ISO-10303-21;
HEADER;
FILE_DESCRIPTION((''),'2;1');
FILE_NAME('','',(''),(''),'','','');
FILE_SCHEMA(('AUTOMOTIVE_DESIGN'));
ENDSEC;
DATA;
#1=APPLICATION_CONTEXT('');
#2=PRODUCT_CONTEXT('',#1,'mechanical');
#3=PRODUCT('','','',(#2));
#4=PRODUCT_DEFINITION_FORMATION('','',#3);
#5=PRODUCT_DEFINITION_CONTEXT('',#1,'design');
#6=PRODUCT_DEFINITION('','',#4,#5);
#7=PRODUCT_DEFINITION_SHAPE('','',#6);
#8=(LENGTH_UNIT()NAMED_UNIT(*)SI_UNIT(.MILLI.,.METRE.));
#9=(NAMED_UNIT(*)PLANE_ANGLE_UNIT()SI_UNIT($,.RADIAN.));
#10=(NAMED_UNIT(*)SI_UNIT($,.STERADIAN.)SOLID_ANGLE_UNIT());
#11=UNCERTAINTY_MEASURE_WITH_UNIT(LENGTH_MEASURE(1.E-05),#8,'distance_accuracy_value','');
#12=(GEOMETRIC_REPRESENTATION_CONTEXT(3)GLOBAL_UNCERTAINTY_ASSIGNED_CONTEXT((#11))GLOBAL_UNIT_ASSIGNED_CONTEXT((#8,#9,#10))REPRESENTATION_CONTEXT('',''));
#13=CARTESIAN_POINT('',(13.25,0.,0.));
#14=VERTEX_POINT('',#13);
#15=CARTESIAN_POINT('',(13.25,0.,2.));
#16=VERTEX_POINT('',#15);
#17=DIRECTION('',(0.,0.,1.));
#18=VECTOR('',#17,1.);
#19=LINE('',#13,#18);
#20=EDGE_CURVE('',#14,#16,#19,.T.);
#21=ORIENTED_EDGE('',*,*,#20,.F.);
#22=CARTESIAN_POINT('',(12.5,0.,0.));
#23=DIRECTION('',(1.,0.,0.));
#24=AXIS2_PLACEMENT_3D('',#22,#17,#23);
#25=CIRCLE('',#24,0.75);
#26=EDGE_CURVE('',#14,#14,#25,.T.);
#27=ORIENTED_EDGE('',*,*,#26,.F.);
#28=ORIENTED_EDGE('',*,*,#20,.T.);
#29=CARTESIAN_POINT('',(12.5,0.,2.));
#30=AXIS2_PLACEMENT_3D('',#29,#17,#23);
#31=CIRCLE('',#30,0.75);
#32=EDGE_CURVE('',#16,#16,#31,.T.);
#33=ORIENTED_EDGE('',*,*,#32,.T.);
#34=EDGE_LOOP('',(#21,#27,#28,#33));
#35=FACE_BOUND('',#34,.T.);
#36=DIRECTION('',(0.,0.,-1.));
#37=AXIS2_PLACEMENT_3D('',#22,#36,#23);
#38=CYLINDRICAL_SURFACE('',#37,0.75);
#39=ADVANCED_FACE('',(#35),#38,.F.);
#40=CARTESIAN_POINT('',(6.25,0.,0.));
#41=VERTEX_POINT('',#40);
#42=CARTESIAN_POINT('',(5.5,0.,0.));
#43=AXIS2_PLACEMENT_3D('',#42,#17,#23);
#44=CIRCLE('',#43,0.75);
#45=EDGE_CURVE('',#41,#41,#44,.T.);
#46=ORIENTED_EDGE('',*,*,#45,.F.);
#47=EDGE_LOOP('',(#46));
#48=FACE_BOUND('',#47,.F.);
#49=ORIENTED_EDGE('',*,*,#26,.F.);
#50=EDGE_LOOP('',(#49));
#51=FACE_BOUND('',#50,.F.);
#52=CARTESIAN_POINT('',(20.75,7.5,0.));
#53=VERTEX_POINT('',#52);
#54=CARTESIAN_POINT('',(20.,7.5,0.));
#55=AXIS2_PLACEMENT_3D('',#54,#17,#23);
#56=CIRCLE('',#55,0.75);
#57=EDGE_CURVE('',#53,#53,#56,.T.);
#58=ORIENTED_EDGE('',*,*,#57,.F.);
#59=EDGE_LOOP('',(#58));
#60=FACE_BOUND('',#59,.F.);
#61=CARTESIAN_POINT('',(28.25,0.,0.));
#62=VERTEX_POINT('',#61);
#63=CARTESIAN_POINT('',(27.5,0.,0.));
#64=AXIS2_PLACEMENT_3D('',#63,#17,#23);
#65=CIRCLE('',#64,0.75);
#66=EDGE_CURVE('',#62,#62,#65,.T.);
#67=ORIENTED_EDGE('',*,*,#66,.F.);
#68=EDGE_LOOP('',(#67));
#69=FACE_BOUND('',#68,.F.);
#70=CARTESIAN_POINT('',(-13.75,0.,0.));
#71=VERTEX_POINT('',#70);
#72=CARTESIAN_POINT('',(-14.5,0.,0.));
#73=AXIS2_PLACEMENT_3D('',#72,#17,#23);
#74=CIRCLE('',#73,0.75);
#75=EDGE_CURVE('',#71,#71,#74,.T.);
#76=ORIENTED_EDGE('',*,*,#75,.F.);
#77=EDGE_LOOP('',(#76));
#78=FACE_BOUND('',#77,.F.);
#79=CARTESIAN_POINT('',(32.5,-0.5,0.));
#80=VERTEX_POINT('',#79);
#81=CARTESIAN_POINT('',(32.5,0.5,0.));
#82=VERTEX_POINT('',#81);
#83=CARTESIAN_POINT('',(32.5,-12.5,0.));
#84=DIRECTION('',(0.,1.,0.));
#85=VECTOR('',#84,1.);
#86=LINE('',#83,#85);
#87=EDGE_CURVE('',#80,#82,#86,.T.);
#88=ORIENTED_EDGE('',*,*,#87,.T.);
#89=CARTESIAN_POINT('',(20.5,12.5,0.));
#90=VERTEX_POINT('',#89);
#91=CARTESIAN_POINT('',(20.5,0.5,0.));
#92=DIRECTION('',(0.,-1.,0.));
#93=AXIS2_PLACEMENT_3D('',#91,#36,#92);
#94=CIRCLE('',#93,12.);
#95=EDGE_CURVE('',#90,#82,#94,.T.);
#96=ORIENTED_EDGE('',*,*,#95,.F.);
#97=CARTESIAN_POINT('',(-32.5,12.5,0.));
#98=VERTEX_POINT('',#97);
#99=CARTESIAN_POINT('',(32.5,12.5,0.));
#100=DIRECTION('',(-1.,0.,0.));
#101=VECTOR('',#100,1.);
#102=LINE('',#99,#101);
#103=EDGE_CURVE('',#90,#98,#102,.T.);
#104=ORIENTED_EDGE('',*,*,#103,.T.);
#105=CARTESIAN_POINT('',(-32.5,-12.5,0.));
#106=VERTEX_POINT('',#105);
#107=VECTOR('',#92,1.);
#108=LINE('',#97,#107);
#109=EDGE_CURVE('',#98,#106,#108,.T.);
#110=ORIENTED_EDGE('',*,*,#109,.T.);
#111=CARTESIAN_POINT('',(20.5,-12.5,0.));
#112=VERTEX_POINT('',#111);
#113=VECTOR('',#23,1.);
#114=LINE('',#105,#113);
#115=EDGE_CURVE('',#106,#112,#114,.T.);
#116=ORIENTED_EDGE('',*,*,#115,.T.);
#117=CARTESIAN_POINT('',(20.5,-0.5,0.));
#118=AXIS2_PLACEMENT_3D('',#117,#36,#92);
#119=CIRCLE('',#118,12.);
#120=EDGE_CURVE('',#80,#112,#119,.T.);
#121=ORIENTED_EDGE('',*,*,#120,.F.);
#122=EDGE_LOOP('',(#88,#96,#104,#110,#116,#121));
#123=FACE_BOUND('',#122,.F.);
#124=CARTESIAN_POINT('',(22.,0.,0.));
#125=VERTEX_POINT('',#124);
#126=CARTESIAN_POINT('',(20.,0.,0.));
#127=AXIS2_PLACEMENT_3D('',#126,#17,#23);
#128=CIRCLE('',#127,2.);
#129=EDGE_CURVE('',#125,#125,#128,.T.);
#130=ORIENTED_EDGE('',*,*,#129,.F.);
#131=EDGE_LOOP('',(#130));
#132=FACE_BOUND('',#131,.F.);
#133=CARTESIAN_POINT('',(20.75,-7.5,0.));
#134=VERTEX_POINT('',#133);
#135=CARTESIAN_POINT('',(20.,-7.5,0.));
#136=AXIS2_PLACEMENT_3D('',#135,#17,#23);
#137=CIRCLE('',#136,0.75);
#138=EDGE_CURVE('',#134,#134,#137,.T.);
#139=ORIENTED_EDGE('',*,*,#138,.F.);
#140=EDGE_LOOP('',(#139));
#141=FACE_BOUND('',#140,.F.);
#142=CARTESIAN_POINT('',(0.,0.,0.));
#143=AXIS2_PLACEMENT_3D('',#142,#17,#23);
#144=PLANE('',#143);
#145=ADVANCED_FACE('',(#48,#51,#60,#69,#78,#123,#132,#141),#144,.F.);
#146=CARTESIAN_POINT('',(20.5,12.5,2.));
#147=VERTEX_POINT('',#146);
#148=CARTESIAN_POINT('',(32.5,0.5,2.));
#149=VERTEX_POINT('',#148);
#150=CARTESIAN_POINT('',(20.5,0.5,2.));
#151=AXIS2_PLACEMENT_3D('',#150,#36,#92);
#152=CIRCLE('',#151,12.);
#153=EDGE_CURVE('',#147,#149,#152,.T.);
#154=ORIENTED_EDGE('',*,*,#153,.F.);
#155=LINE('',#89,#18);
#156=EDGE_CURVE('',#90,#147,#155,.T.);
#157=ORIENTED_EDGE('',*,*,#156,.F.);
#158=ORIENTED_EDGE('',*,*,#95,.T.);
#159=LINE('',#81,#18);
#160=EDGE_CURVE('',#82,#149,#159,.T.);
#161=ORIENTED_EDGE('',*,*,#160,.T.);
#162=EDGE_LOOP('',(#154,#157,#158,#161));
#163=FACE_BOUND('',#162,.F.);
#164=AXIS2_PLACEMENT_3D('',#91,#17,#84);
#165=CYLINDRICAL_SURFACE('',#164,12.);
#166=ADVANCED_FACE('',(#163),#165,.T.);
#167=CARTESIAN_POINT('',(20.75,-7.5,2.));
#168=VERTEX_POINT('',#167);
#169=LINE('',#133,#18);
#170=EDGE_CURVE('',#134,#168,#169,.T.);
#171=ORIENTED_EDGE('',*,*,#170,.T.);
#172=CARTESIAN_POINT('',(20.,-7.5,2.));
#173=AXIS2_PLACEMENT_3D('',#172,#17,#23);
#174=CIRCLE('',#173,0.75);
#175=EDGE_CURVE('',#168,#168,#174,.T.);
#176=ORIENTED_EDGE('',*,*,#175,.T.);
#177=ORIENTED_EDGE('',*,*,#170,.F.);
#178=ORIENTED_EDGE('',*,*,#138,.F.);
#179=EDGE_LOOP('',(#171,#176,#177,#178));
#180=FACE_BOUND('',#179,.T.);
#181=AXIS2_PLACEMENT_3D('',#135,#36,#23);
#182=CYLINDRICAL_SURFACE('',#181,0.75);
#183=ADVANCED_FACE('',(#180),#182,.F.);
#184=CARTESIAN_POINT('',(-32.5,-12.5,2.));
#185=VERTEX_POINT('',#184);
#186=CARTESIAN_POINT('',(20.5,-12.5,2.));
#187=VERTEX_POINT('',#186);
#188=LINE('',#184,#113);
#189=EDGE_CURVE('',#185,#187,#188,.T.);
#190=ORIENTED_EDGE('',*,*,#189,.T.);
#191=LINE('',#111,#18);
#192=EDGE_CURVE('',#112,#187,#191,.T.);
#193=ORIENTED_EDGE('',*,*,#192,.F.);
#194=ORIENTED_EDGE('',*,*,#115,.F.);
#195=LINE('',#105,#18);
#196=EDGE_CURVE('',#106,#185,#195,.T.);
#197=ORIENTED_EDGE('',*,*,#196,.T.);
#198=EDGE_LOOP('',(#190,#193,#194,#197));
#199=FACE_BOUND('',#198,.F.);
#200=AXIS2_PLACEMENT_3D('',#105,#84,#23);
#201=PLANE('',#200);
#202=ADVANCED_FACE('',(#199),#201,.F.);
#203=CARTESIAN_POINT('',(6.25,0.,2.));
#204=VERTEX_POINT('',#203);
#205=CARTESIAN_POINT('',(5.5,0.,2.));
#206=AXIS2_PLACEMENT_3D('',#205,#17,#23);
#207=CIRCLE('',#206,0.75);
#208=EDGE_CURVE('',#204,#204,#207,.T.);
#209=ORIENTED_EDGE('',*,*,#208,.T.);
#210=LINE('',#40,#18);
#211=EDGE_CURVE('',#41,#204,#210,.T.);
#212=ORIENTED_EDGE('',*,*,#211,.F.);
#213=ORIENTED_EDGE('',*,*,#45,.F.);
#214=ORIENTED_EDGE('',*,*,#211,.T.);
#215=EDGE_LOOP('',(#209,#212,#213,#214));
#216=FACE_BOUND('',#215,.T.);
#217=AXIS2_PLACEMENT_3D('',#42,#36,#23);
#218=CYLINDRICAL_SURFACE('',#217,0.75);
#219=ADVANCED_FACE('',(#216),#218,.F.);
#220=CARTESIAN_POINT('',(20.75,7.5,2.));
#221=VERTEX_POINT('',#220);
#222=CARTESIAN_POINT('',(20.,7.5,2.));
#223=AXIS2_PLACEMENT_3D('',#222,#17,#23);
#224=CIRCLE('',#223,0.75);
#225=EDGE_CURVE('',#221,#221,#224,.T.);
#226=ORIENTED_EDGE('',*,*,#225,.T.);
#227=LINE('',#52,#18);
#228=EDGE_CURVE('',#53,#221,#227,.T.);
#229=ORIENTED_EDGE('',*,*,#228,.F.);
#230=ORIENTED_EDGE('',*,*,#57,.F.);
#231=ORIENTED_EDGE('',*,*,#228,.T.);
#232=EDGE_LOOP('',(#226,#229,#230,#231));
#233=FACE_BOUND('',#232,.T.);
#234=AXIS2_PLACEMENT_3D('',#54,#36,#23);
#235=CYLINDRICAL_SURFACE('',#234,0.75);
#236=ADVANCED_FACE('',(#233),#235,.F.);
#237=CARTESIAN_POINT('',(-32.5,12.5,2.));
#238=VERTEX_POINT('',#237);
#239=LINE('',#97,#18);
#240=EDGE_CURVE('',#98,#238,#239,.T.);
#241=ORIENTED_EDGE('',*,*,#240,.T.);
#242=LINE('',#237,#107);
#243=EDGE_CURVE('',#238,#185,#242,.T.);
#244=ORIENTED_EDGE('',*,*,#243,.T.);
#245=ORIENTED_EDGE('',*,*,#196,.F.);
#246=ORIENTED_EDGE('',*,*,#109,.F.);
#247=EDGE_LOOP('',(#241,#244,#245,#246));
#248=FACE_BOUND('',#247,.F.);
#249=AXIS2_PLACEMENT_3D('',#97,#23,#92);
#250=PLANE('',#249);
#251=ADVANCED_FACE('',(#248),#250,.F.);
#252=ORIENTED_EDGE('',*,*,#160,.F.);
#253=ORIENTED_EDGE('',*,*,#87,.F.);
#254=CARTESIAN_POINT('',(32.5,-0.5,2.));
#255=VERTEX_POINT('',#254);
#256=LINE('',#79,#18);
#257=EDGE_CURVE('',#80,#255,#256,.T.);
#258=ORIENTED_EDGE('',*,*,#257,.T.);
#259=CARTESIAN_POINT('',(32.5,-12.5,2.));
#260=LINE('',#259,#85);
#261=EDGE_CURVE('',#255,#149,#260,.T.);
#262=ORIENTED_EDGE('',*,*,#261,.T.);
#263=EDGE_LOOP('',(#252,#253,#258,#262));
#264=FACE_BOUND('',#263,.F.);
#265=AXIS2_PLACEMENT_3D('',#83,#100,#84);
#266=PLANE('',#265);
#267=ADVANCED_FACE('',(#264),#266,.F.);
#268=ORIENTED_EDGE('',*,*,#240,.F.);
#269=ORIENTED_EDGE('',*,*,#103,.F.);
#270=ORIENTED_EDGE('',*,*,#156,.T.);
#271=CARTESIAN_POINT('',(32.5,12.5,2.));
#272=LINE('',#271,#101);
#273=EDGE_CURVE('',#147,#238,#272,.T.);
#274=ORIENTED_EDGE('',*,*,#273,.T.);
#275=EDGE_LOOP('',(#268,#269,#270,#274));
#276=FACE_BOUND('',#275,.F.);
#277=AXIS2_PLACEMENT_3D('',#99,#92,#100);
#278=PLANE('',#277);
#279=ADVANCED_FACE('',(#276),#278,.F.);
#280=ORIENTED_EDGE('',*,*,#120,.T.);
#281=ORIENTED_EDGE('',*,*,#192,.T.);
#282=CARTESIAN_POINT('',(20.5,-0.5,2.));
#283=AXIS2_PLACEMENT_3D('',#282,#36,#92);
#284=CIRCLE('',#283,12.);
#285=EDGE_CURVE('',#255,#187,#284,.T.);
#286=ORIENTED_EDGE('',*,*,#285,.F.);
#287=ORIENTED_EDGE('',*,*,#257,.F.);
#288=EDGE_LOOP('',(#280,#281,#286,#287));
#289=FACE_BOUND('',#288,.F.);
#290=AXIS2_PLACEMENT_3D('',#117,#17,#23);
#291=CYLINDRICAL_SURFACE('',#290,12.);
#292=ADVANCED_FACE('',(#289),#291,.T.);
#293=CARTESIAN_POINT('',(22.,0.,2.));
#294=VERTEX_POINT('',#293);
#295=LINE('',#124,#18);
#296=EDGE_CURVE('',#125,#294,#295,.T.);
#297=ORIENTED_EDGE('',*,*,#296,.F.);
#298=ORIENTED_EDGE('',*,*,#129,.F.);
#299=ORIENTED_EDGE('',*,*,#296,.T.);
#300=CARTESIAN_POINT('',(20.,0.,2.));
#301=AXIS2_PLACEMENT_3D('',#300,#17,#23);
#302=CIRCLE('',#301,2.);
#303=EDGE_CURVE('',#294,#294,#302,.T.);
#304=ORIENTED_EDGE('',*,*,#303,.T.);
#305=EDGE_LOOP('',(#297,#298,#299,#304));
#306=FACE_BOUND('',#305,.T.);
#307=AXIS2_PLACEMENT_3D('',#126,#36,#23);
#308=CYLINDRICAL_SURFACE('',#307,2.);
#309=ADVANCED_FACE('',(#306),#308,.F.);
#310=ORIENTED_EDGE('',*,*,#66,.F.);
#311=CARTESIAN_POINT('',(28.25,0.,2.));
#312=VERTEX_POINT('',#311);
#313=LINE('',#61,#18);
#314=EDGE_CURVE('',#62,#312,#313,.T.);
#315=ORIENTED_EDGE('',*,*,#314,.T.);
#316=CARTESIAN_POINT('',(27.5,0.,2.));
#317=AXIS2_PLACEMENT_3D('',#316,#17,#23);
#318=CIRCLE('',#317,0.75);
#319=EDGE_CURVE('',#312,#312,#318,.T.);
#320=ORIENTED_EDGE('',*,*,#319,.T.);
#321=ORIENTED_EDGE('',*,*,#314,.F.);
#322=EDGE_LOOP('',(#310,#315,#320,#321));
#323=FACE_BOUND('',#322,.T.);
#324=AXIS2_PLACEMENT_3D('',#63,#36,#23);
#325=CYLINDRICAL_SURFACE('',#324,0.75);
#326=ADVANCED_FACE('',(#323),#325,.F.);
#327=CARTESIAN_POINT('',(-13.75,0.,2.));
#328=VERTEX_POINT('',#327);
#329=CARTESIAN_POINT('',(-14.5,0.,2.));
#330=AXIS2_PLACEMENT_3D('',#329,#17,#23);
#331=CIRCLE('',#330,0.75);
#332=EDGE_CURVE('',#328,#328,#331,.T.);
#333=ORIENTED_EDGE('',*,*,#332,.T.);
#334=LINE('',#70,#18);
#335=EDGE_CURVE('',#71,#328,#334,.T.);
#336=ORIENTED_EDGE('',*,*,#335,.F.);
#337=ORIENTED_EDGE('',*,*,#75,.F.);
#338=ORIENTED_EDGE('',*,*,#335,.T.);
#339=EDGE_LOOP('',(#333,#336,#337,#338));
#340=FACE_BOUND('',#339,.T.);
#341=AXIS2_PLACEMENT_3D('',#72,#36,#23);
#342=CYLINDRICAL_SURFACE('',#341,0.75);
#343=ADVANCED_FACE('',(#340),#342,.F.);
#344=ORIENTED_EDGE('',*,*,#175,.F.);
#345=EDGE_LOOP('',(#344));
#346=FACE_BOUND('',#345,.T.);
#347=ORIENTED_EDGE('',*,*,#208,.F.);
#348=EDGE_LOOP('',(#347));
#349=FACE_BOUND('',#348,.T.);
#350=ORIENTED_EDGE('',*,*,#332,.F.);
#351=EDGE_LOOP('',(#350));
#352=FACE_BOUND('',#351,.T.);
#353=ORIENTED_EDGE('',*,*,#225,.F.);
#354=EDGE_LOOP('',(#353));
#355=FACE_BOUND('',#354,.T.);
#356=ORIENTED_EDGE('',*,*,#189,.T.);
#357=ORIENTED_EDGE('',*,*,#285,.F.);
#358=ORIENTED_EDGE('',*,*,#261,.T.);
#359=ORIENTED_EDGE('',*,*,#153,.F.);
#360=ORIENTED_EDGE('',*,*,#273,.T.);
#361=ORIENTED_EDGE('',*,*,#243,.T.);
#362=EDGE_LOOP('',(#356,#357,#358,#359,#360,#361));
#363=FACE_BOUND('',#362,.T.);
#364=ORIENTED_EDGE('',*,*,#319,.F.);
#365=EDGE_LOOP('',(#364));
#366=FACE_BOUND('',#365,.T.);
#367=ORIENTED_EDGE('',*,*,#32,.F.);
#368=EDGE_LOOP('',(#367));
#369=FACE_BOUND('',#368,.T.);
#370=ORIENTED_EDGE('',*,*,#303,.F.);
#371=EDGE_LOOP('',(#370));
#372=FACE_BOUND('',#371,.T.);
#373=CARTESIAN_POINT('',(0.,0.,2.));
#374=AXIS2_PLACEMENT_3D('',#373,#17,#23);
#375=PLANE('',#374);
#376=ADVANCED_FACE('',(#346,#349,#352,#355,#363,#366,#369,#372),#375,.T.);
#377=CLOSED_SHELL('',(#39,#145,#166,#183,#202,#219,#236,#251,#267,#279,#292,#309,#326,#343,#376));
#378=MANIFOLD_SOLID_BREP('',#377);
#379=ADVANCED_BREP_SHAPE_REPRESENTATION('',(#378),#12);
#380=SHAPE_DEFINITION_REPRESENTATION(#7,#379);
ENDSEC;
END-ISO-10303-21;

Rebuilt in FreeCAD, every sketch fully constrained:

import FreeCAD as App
import Part
import Sketcher
from FreeCAD import Vector


def edges_at(feature, points):
    """Names of the edges that pass closest to the given points."""
    edges = feature.Shape.Edges
    near = lambda p: min(range(len(edges)), key=lambda i: edges[i].distToShape(Part.Vertex(*p))[0])
    return sorted({f"Edge{near(p) + 1}" for p in points})

doc = App.newDocument("Part")
params = doc.addObject("Spreadsheet::Sheet", "Params")
for row, (alias, value) in enumerate([
    ("sketch1_diameter", "4 mm"),
    ("sketch1_diameter2", "1.5 mm"),
    ("sketch1_width", "65 mm"),
    ("sketch1_height", "25 mm"),
    ("pad1_length", "2 mm"),
    ("fillet_radius", "12 mm"),
    ("fillet2_radius", "12 mm"),
], start=1):
    params.set(f"A{row}", alias)
    params.set(f"B{row}", "=" + value)
    params.setAlias(f"B{row}", alias)

body = doc.addObject("PartDesign::Body", "Body")

sketch1 = body.newObject("Sketcher::SketchObject", "Sketch")
sketch1.AttachmentSupport = (doc.getObject("XY_Plane"), [""])
sketch1.MapMode = "FlatFace"
sketch1.addGeometry(Part.LineSegment(Vector(-32.5, 12.5, 0), Vector(-32.5, -12.5, 0)), False)
sketch1.addGeometry(Part.LineSegment(Vector(-32.5, -12.5, 0), Vector(32.5, -12.5, 0)), False)
sketch1.addGeometry(Part.LineSegment(Vector(32.5, -12.5, 0), Vector(32.5, 12.5, 0)), False)
sketch1.addGeometry(Part.LineSegment(Vector(32.5, 12.5, 0), Vector(-32.5, 12.5, 0)), False)
sketch1.addGeometry(Part.Circle(Vector(20, -7.5, 0), Vector(0, 0, 1), 0.75), False)
sketch1.addGeometry(Part.Circle(Vector(-14.5, 0, 0), Vector(0, 0, 1), 0.75), False)
sketch1.addGeometry(Part.Circle(Vector(5.5, 0, 0), Vector(0, 0, 1), 0.75), False)
sketch1.addGeometry(Part.Circle(Vector(12.5, 0, 0), Vector(0, 0, 1), 0.75), False)
sketch1.addGeometry(Part.Circle(Vector(20, 0, 0), Vector(0, 0, 1), 2), False)
sketch1.addGeometry(Part.Circle(Vector(27.5, 0, 0), Vector(0, 0, 1), 0.75), False)
sketch1.addGeometry(Part.Circle(Vector(20, 7.5, 0), Vector(0, 0, 1), 0.75), False)
sketch1.addConstraint(Sketcher.Constraint("Coincident", 0, 2, 1, 1))
sketch1.addConstraint(Sketcher.Constraint("Coincident", 1, 2, 2, 1))
sketch1.addConstraint(Sketcher.Constraint("Coincident", 2, 2, 3, 1))
sketch1.addConstraint(Sketcher.Constraint("Coincident", 3, 2, 0, 1))
sketch1.addConstraint(Sketcher.Constraint("Vertical", 0))
sketch1.addConstraint(Sketcher.Constraint("Horizontal", 1))
sketch1.addConstraint(Sketcher.Constraint("Vertical", 2))
sketch1.addConstraint(Sketcher.Constraint("Horizontal", 3))
sketch1.addConstraint(Sketcher.Constraint("Equal", 4, 5))
sketch1.addConstraint(Sketcher.Constraint("Equal", 5, 6))
sketch1.addConstraint(Sketcher.Constraint("Equal", 6, 7))
sketch1.addConstraint(Sketcher.Constraint("Equal", 7, 9))
sketch1.addConstraint(Sketcher.Constraint("Equal", 9, 10))
sketch1.addConstraint(Sketcher.Constraint("Symmetric", 0, 2, 2, 2, -1, 1))
sketch1.addConstraint(Sketcher.Constraint("Symmetric", 4, 3, 10, 3, -1))
sketch1.addConstraint(Sketcher.Constraint("PointOnObject", 5, 3, -1))
sketch1.addConstraint(Sketcher.Constraint("PointOnObject", 6, 3, -1))
sketch1.addConstraint(Sketcher.Constraint("PointOnObject", 7, 3, -1))
sketch1.addConstraint(Sketcher.Constraint("PointOnObject", 8, 3, -1))
sketch1.addConstraint(Sketcher.Constraint("PointOnObject", 9, 3, -1))
sketch1.addConstraint(Sketcher.Constraint("Vertical", 4, 3, 8, 3))
sketch1.addConstraint(Sketcher.Constraint("Diameter", 8, 4.0))
sketch1.addConstraint(Sketcher.Constraint("Diameter", 4, 1.5))
sketch1.addConstraint(Sketcher.Constraint("DistanceX", 1, 1, 1, 2, 65.0))
sketch1.addConstraint(Sketcher.Constraint("DistanceY", 0, 2, 0, 1, 25.0))
sketch1.addConstraint(Sketcher.Constraint("DistanceX", -1, 1, 4, 3, 20.0))
sketch1.addConstraint(Sketcher.Constraint("DistanceX", 5, 3, 6, 3, 20.0))
sketch1.addConstraint(Sketcher.Constraint("DistanceX", 6, 3, 7, 3, 7.0))
sketch1.addConstraint(Sketcher.Constraint("DistanceX", 7, 3, 9, 3, 15.0))
sketch1.addConstraint(Sketcher.Constraint("DistanceY", 4, 3, 10, 3, 15.0))
sketch1.addConstraint(Sketcher.Constraint("DistanceX", 0, 2, 5, 3, 18.0))
sketch1.setExpression("Constraints[21]", "Params.sketch1_diameter")
sketch1.setExpression("Constraints[22]", "Params.sketch1_diameter2")
sketch1.setExpression("Constraints[23]", "Params.sketch1_width")
sketch1.setExpression("Constraints[24]", "Params.sketch1_height")
pad1 = body.newObject("PartDesign::Pad", "Pad")
pad1.Profile = sketch1
pad1.setExpression("Length", "Params.pad1_length")
doc.recompute()

fillet = body.newObject("PartDesign::Fillet", "Fillet")
fillet.Base = (pad1, edges_at(pad1, [(32.5, 12.5, 1)]))
fillet.setExpression("Radius", "Params.fillet_radius")
doc.recompute()

fillet2 = body.newObject("PartDesign::Fillet", "Fillet001")
fillet2.Base = (fillet, edges_at(fillet, [(32.5, -12.5, 1)]))
fillet2.setExpression("Radius", "Params.fillet2_radius")

doc.recompute()
